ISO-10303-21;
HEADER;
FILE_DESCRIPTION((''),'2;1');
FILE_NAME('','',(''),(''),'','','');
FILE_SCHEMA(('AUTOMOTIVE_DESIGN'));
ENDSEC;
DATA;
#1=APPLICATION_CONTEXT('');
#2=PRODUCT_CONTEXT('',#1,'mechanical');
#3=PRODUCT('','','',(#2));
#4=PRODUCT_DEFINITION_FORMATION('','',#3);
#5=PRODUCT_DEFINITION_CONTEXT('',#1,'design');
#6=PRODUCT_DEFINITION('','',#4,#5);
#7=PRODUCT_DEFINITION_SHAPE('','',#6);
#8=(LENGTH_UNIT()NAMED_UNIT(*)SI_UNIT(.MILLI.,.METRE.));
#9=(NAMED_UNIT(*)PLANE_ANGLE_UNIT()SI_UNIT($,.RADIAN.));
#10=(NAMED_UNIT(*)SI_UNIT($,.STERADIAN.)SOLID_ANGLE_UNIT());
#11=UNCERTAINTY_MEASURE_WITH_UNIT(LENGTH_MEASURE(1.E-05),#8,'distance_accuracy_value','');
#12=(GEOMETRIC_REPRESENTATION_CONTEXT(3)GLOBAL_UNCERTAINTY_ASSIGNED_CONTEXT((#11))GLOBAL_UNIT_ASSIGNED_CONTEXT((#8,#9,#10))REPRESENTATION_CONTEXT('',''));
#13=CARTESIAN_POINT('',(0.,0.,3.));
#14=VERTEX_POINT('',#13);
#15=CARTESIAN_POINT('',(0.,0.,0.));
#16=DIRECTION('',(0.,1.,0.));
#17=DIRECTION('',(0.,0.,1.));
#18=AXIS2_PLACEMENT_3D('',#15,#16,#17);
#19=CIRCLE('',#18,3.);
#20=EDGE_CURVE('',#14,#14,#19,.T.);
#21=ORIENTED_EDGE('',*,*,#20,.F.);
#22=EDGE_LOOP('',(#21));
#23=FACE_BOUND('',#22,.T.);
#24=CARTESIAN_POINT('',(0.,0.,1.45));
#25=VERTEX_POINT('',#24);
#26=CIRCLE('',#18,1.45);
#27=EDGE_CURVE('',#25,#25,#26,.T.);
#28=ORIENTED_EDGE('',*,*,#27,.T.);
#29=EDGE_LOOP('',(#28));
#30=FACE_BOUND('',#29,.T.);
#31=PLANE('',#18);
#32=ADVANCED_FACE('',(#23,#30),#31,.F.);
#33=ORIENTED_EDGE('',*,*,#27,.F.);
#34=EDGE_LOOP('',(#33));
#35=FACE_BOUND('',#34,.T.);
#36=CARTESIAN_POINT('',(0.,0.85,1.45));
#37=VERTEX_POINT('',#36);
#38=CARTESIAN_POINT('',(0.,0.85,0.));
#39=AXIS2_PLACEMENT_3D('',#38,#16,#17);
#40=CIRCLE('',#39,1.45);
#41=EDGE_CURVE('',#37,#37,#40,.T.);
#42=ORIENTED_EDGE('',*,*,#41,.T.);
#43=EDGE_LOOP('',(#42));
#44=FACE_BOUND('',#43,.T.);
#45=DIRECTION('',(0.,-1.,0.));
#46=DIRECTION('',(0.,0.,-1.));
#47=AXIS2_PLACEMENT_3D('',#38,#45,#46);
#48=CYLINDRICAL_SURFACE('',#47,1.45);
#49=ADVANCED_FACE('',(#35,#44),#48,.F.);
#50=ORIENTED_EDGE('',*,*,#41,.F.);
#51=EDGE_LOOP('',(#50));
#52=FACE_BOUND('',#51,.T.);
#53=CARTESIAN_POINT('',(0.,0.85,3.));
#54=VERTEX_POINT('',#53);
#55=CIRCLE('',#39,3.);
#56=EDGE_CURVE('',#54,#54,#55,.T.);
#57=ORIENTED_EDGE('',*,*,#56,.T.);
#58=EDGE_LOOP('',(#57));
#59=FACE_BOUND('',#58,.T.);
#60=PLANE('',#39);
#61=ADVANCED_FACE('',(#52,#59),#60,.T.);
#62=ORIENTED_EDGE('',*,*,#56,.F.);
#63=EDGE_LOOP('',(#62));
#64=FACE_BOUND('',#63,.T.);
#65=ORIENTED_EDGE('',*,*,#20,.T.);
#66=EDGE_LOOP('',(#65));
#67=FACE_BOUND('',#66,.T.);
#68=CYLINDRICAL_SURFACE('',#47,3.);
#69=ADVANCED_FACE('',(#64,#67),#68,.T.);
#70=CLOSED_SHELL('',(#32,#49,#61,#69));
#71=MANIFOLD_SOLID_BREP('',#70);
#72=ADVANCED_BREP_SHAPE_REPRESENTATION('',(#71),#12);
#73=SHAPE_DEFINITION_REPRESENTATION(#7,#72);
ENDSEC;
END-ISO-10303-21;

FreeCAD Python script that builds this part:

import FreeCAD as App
import Part
import Sketcher
Q = App.Units.Quantity

doc = App.newDocument("Part")
body = doc.addObject("PartDesign::Body", "Body")

# Sketch on XZ plane
sketch1 = body.newObject("Sketcher::SketchObject", "Sketch")
sketch1.AttachmentSupport = (doc.getObject("XZ_Plane"), [""])
sketch1.MapMode = "FlatFace"
sketch1.addGeometry(Part.Circle(App.Vector(0, 0, 0), App.Vector(0, 0, 1), 3), False)
sketch1.addGeometry(Part.Circle(App.Vector(0, 0, 0), App.Vector(0, 0, 1), 1.45), False)
sketch1.addConstraint(Sketcher.Constraint("Coincident", 0, 3, -1, 1))
sketch1.addConstraint(Sketcher.Constraint("Coincident", 1, 3, -1, 1))
sketch1.addConstraint(Sketcher.Constraint("Diameter", 0, Q("6 mm")))
sketch1.addConstraint(Sketcher.Constraint("Diameter", 1, Q("2.9 mm")))
pad1 = body.newObject("PartDesign::Pad", "Pad")
pad1.Profile = sketch1
pad1.Length = 0.85
pad1.Reversed = True

doc.recompute()
